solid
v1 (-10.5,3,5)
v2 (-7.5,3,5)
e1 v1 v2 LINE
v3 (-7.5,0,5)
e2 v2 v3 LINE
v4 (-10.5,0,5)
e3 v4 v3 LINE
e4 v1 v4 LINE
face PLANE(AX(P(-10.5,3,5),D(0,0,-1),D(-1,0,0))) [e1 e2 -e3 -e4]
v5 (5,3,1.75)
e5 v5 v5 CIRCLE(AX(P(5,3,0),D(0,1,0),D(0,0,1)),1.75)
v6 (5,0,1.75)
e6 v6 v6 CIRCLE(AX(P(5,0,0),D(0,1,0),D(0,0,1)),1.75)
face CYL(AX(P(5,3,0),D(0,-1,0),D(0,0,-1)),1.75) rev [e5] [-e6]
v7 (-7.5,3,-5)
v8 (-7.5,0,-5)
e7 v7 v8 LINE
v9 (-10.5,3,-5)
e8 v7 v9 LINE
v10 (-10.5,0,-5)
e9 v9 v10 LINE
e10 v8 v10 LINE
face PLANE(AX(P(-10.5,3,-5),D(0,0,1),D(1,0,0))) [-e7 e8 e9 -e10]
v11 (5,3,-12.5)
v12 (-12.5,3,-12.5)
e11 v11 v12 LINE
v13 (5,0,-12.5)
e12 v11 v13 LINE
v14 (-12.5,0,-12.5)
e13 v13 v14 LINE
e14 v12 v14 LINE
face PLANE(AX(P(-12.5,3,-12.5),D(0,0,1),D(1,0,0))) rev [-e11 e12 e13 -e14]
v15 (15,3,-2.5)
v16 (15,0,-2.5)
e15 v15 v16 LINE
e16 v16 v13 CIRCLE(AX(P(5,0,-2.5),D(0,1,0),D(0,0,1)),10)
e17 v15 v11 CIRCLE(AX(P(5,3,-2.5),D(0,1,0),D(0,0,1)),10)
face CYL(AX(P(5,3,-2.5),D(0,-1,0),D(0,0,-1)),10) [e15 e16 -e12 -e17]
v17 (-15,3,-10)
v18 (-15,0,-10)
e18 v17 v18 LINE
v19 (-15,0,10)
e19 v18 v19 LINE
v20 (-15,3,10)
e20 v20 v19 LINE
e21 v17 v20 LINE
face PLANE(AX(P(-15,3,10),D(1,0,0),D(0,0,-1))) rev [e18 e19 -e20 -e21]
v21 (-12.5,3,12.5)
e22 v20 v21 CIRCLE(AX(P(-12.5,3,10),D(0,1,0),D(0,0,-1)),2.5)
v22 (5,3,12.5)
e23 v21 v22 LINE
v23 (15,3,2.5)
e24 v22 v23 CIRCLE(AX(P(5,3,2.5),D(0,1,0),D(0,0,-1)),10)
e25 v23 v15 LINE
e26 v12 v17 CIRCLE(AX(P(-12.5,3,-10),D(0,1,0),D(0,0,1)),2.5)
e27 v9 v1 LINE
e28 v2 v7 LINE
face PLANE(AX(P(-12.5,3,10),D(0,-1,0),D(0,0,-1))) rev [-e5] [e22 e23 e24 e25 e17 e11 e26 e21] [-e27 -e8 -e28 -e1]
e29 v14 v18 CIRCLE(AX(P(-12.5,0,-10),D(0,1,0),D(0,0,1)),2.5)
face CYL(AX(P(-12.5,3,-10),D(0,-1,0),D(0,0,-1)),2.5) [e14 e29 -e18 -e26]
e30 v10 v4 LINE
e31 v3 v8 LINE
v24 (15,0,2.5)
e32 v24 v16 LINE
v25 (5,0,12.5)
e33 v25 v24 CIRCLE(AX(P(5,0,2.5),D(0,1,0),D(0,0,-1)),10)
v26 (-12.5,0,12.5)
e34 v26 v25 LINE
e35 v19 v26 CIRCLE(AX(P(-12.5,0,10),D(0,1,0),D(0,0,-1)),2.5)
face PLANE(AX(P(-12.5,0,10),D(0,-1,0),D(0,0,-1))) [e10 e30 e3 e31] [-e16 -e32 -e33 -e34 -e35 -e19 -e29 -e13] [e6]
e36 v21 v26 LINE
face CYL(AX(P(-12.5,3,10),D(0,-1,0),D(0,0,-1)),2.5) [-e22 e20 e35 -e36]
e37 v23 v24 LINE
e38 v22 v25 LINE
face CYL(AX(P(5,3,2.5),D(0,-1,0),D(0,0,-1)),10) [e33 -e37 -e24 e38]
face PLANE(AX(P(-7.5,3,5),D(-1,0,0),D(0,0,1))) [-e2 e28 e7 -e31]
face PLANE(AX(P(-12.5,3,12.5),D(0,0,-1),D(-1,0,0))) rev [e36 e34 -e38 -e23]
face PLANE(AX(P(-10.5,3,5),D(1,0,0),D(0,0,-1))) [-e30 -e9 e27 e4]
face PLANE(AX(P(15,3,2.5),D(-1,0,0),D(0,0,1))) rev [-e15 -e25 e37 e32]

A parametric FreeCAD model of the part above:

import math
import FreeCAD as App
import Part
import Sketcher
from FreeCAD import Vector
Q = App.Units.Quantity


def add_polygon(sketch, points):
    """Adds a closed chain of lines whose ends are joined by coincident constraints."""
    first, n = sketch.GeometryCount, len(points)
    for a, b in zip(points, points[1:] + points[:1]):
        sketch.addGeometry(Part.LineSegment(App.Vector(*a, 0), App.Vector(*b, 0)), False)
    for i in range(n):
        sketch.addConstraint(Sketcher.Constraint("Coincident", first + i, 2, first + (i + 1) % n, 1))

doc = App.newDocument("Part")
params = doc.addObject("Spreadsheet::Sheet", "Params")
for row, (alias, value) in enumerate([
    ("sketch1_radius", "10 mm"),
    ("sketch1_diameter", "3.5 mm"),
    ("sketch1_radius2", "2.5 mm"),
    ("sketch1_width", "3 mm"),
    ("sketch1_height", "5 mm"),
    ("pad1_length", "3 mm"),
], start=1):
    params.set(f"A{row}", alias)
    params.set(f"B{row}", "=" + value)
    params.setAlias(f"B{row}", alias)

body = doc.addObject("PartDesign::Body", "Body")

sketch1 = body.newObject("Sketcher::SketchObject", "Sketch")
sketch1.AttachmentSupport = (doc.getObject("XZ_Plane"), [""])
sketch1.MapMode = "FlatFace"
sketch1.addGeometry(Part.LineSegment(Vector(-12.5, 12.5, 0), Vector(5, 12.5, 0)), False)
sketch1.addGeometry(Part.ArcOfCircle(Part.Circle(Vector(5, 2.5, 0), Vector(0, 0, 1), 10), math.radians(0), math.radians(90)), False)
sketch1.addGeometry(Part.LineSegment(Vector(15, 2.5, 0), Vector(15, -2.5, 0)), False)
sketch1.addGeometry(Part.ArcOfCircle(Part.Circle(Vector(5, -2.5, 0), Vector(0, 0, 1), 10), math.radians(-90), math.radians(0)), False)
sketch1.addGeometry(Part.LineSegment(Vector(5, -12.5, 0), Vector(-12.5, -12.5, 0)), False)
sketch1.addGeometry(Part.ArcOfCircle(Part.Circle(Vector(-12.5, -10, 0), Vector(0, 0, 1), 2.5), math.radians(180), math.radians(270)), False)
sketch1.addGeometry(Part.LineSegment(Vector(-15, -10, 0), Vector(-15, 10, 0)), False)
sketch1.addGeometry(Part.ArcOfCircle(Part.Circle(Vector(-12.5, 10, 0), Vector(0, 0, 1), 2.5), math.radians(90), math.radians(180)), False)
add_polygon(sketch1, [(-7.5, 5), (-10.5, 5), (-10.5, -5), (-7.5, -5)])
sketch1.addGeometry(Part.Circle(Vector(5, 0, 0), Vector(0, 0, 1), 1.8), False)
sketch1.addConstraint([
    Sketcher.Constraint("Tangent", 0, 2, 1, 2),
    Sketcher.Constraint("Tangent", 1, 1, 2, 1),
    Sketcher.Constraint("Tangent", 2, 2, 3, 2),
    Sketcher.Constraint("Tangent", 3, 1, 4, 1),
    Sketcher.Constraint("Tangent", 4, 2, 5, 2),
    Sketcher.Constraint("Tangent", 5, 1, 6, 1),
    Sketcher.Constraint("Tangent", 6, 2, 7, 2),
    Sketcher.Constraint("Tangent", 7, 1, 0, 1),
    Sketcher.Constraint("Horizontal", 0),
    Sketcher.Constraint("Vertical", 2),
    Sketcher.Constraint("Horizontal", 4),
    Sketcher.Constraint("Vertical", 6),
    Sketcher.Constraint("Horizontal", 8),
    Sketcher.Constraint("Vertical", 9),
    Sketcher.Constraint("Horizontal", 10),
    Sketcher.Constraint("Vertical", 11),
    Sketcher.Constraint("Equal", 1, 3),
    Sketcher.Constraint("Equal", 5, 7),
    Sketcher.Constraint("PointOnObject", 12, 3, -1),
    Sketcher.Constraint("Vertical", 3, 3, 12, 3),
    Sketcher.Constraint("Radius", 1, Q("10 mm")),
    Sketcher.Constraint("Diameter", 12, Q("3.5 mm")),
    Sketcher.Constraint("Radius", 5, Q("2.5 mm")),
    Sketcher.Constraint("DistanceX", 8, 2, 8, 1, Q("3 mm")),
    Sketcher.Constraint("DistanceY", 2, 2, 2, 1, Q("5 mm")),
    Sketcher.Constraint("DistanceY", 9, 2, 9, 1, Q("10 mm")),
    Sketcher.Constraint("DistanceX", 0, 1, 0, 2, Q("17.5 mm")),
    Sketcher.Constraint("DistanceX", -1, 1, 1, 3, Q("5 mm")),
    Sketcher.Constraint("DistanceY", 5, 3, -1, 1, Q("10 mm")),
    Sketcher.Constraint("DistanceY", -1, 1, 8, 2, Q("5 mm")),
    Sketcher.Constraint("DistanceX", 7, 3, 8, 2, Q("2 mm")),
])
sketch1.setExpression("Constraints[24]", "Params.sketch1_radius")
sketch1.setExpression("Constraints[25]", "Params.sketch1_diameter")
sketch1.setExpression("Constraints[26]", "Params.sketch1_radius2")
sketch1.setExpression("Constraints[27]", "Params.sketch1_width")
sketch1.setExpression("Constraints[28]", "Params.sketch1_height")
pad1 = body.newObject("PartDesign::Pad", "Pad")
pad1.Profile = sketch1
pad1.setExpression("Length", "Params.pad1_length")
pad1.Reversed = True

doc.recompute()
